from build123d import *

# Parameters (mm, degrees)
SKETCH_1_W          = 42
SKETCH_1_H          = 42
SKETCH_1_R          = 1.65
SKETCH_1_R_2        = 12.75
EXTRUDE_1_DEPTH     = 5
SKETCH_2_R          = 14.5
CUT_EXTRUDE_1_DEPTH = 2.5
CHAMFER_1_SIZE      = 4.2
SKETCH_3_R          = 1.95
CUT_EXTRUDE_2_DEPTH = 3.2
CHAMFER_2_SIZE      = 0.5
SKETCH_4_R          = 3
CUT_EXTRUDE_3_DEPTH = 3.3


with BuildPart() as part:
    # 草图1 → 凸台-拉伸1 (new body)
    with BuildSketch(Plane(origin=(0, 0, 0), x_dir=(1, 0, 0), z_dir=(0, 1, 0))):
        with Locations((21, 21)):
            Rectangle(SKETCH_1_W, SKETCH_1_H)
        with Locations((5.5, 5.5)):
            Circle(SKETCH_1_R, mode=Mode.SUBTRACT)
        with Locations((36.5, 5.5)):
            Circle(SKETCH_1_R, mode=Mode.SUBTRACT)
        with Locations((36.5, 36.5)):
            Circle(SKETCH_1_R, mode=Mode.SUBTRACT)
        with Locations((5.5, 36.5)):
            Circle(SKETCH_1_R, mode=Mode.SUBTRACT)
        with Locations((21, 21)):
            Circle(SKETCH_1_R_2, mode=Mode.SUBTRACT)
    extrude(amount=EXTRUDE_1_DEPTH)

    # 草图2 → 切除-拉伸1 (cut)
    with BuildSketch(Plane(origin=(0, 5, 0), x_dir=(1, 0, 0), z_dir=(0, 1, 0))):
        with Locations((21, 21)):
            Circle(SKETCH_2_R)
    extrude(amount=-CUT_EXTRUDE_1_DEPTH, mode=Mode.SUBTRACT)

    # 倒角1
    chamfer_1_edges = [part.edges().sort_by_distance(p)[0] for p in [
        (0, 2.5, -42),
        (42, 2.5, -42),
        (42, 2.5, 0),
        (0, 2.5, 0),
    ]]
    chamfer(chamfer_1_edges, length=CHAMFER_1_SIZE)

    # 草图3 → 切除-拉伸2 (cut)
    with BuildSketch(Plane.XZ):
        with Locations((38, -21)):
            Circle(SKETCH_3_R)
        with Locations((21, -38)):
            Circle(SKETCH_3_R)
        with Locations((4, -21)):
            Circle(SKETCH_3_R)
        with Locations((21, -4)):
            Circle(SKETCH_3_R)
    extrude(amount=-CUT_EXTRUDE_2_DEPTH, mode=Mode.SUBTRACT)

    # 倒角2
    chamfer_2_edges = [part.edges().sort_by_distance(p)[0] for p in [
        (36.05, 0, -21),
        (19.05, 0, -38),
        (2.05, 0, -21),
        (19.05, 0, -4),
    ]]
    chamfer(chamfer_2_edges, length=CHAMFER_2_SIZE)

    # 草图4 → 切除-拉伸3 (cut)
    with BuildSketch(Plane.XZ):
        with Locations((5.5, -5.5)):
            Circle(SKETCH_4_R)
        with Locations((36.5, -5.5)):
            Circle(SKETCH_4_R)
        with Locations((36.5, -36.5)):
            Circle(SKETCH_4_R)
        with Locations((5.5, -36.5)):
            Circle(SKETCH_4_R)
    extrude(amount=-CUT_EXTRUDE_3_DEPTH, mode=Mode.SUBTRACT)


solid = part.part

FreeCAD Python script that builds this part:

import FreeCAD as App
import Part
import Sketcher


def edges_at(feature, points):
    """Names of the edges that pass closest to the given points."""
    edges = feature.Shape.Edges
    near = lambda p: min(range(len(edges)), key=lambda i: edges[i].distToShape(Part.Vertex(*p))[0])
    return sorted({f"Edge{near(p) + 1}" for p in points})

doc = App.newDocument("Part")
body = doc.addObject("PartDesign::Body", "Body")

# Sketch on XZ plane
sketch1 = body.newObject("Sketcher::SketchObject", "Sketch")
sketch1.AttachmentSupport = (doc.getObject("XZ_Plane"), [""])
sketch1.MapMode = "FlatFace"
sketch1.addGeometry([
    Part.LineSegment(App.Vector(0, -42, 0), App.Vector(0, 0, 0)),  # 0
    Part.LineSegment(App.Vector(0, 0, 0), App.Vector(42, 0, 0)),  # 1
    Part.LineSegment(App.Vector(42, 0, 0), App.Vector(42, -42, 0)),  # 2
    Part.LineSegment(App.Vector(42, -42, 0), App.Vector(0, -42, 0)),  # 3
    Part.Circle(App.Vector(5.5, -5.5, 0), App.Vector(0, 0, 1), 1.65),  # 4
    Part.Circle(App.Vector(36.5, -5.5, 0), App.Vector(0, 0, 1), 1.65),  # 5
    Part.Circle(App.Vector(5.5, -36.5, 0), App.Vector(0, 0, 1), 1.65),  # 6
    Part.Circle(App.Vector(21, -21, 0), App.Vector(0, 0, 1), 12.75),  # 7
    Part.Circle(App.Vector(36.5, -36.5, 0), App.Vector(0, 0, 1), 1.65),  # 8
], False)
sketch1.addConstraint([
    Sketcher.Constraint("Coincident", 0, 2, 1, 1),
    Sketcher.Constraint("Coincident", 1, 2, 2, 1),
    Sketcher.Constraint("Coincident", 2, 2, 3, 1),
    Sketcher.Constraint("Coincident", 3, 2, 0, 1),
    Sketcher.Constraint("Vertical", 0),
    Sketcher.Constraint("Horizontal", 1),
    Sketcher.Constraint("Vertical", 2),
    Sketcher.Constraint("Horizontal", 3),
    Sketcher.Constraint("Coincident", 0, 2, -1, 1),
    Sketcher.Constraint("Equal", 4, 5),
    Sketcher.Constraint("Equal", 5, 6),
    Sketcher.Constraint("Equal", 6, 8),
    Sketcher.Constraint("Horizontal", 4, 3, 5, 3),
    Sketcher.Constraint("Horizontal", 6, 3, 8, 3),
    Sketcher.Constraint("Vertical", 4, 3, 6, 3),
    Sketcher.Constraint("Vertical", 5, 3, 8, 3),
    Sketcher.Constraint("Equal", 3, 0),
    Sketcher.Constraint("Diameter", 4, 3.3),
    Sketcher.Constraint("Diameter", 7, 25.5),
    Sketcher.Constraint("DistanceX", 1, 1, 1, 2, 42.0),
    Sketcher.Constraint("DistanceX", -1, 1, 7, 3, 21.0),
    Sketcher.Constraint("DistanceY", 7, 3, -1, 1, 21.0),
    Sketcher.Constraint("DistanceX", 4, 3, 5, 3, 31.0),
    Sketcher.Constraint("DistanceY", 6, 3, 4, 3, 31.0),
    Sketcher.Constraint("DistanceX", -1, 1, 4, 3, 5.5),
    Sketcher.Constraint("DistanceY", 4, 3, -1, 1, 5.5),
])
pad1 = body.newObject("PartDesign::Pad", "Pad")
pad1.Profile = sketch1
pad1.Length = 5
pad1.Reversed = True

# Sketch on XZ plane
sketch2 = body.newObject("Sketcher::SketchObject", "Sketch001")
sketch2.AttachmentSupport = (doc.getObject("XZ_Plane"), [""])
sketch2.MapMode = "FlatFace"
sketch2.AttachmentOffset = App.Placement(App.Vector(0, 0, -5), App.Rotation())
sketch2.addGeometry(Part.Circle(App.Vector(21, -21, 0), App.Vector(0, 0, 1), 14.5), False)
sketch2.addConstraint([
    Sketcher.Constraint("Diameter", 0, 29.0),
    Sketcher.Constraint("DistanceX", -1, 1, 0, 3, 21.0),
    Sketcher.Constraint("DistanceY", 0, 3, -1, 1, 21.0),
])
pocket1 = body.newObject("PartDesign::Pocket", "Pocket")
pocket1.Profile = sketch2
pocket1.Length = 2.5
pocket1.Reversed = True
doc.recompute()

chamfer = body.newObject("PartDesign::Chamfer", "Chamfer")
chamfer.Base = (pocket1, edges_at(pocket1, [
    (0, 2.5, -42),
    (42, 2.5, -42),
    (42, 2.5, 0),
    (0, 2.5, 0),
]))
chamfer.Size = 4.2

# Sketch on XZ plane
sketch3 = body.newObject("Sketcher::SketchObject", "Sketch002")
sketch3.AttachmentSupport = (doc.getObject("XZ_Plane"), [""])
sketch3.MapMode = "FlatFace"
sketch3.addGeometry([
    Part.Circle(App.Vector(38, -21, 0), App.Vector(0, 0, 1), 1.95),
    Part.Circle(App.Vector(21, -38, 0), App.Vector(0, 0, 1), 1.95),
    Part.Circle(App.Vector(4, -21, 0), App.Vector(0, 0, 1), 1.95),
    Part.Circle(App.Vector(21, -4, 0), App.Vector(0, 0, 1), 1.95),
], False)
sketch3.addConstraint([
    Sketcher.Constraint("Equal", 0, 1),
    Sketcher.Constraint("Equal", 1, 2),
    Sketcher.Constraint("Equal", 2, 3),
    Sketcher.Constraint("Horizontal", 0, 3, 2, 3),
    Sketcher.Constraint("Vertical", 1, 3, 3, 3),
    Sketcher.Constraint("Diameter", 0, 3.9),
    Sketcher.Constraint("DistanceX", -1, 1, 0, 3, 38.0),
    Sketcher.Constraint("DistanceY", 0, 3, -1, 1, 21.0),
    Sketcher.Constraint("DistanceX", -1, 1, 1, 3, 21.0),
    Sketcher.Constraint("DistanceY", 1, 3, -1, 1, 38.0),
    Sketcher.Constraint("DistanceX", -1, 1, 2, 3, 4.0),
    Sketcher.Constraint("DistanceY", 3, 3, -1, 1, 4.0),
])
pocket2 = body.newObject("PartDesign::Pocket", "Pocket001")
pocket2.Profile = sketch3
pocket2.Length = 3.2
doc.recompute()

chamfer2 = body.newObject("PartDesign::Chamfer", "Chamfer001")
chamfer2.Base = (pocket2, edges_at(pocket2, [
    (36.05, 0, -21),
    (19.05, 0, -38),
    (2.05, 0, -21),
    (19.05, 0, -4),
]))
chamfer2.Size = 0.5

# Sketch on XZ plane
sketch4 = body.newObject("Sketcher::SketchObject", "Sketch003")
sketch4.AttachmentSupport = (doc.getObject("XZ_Plane"), [""])
sketch4.MapMode = "FlatFace"
sketch4.addGeometry([
    Part.Circle(App.Vector(5.5, -5.5, 0), App.Vector(0, 0, 1), 3),
    Part.Circle(App.Vector(36.5, -5.5, 0), App.Vector(0, 0, 1), 3),
    Part.Circle(App.Vector(36.5, -36.5, 0), App.Vector(0, 0, 1), 3),
    Part.Circle(App.Vector(5.5, -36.5, 0), App.Vector(0, 0, 1), 3),
], False)
sketch4.addConstraint([
    Sketcher.Constraint("Equal", 0, 1),
    Sketcher.Constraint("Equal", 1, 2),
    Sketcher.Constraint("Equal", 2, 3),
    Sketcher.Constraint("Horizontal", 0, 3, 1, 3),
    Sketcher.Constraint("Horizontal", 2, 3, 3, 3),
    Sketcher.Constraint("Vertical", 1, 3, 2, 3),
    Sketcher.Constraint("Vertical", 0, 3, 3, 3),
    Sketcher.Constraint("Diameter", 0, 6.0),
    Sketcher.Constraint("DistanceX", 0, 3, 1, 3, 31.0),
    Sketcher.Constraint("DistanceY", 2, 3, 1, 3, 31.0),
    Sketcher.Constraint("DistanceX", -1, 1, 0, 3, 5.5),
    Sketcher.Constraint("DistanceY", 0, 3, -1, 1, 5.5),
])
pocket3 = body.newObject("PartDesign::Pocket", "Pocket002")
pocket3.Profile = sketch4
pocket3.Length = 3.3

doc.recompute()
